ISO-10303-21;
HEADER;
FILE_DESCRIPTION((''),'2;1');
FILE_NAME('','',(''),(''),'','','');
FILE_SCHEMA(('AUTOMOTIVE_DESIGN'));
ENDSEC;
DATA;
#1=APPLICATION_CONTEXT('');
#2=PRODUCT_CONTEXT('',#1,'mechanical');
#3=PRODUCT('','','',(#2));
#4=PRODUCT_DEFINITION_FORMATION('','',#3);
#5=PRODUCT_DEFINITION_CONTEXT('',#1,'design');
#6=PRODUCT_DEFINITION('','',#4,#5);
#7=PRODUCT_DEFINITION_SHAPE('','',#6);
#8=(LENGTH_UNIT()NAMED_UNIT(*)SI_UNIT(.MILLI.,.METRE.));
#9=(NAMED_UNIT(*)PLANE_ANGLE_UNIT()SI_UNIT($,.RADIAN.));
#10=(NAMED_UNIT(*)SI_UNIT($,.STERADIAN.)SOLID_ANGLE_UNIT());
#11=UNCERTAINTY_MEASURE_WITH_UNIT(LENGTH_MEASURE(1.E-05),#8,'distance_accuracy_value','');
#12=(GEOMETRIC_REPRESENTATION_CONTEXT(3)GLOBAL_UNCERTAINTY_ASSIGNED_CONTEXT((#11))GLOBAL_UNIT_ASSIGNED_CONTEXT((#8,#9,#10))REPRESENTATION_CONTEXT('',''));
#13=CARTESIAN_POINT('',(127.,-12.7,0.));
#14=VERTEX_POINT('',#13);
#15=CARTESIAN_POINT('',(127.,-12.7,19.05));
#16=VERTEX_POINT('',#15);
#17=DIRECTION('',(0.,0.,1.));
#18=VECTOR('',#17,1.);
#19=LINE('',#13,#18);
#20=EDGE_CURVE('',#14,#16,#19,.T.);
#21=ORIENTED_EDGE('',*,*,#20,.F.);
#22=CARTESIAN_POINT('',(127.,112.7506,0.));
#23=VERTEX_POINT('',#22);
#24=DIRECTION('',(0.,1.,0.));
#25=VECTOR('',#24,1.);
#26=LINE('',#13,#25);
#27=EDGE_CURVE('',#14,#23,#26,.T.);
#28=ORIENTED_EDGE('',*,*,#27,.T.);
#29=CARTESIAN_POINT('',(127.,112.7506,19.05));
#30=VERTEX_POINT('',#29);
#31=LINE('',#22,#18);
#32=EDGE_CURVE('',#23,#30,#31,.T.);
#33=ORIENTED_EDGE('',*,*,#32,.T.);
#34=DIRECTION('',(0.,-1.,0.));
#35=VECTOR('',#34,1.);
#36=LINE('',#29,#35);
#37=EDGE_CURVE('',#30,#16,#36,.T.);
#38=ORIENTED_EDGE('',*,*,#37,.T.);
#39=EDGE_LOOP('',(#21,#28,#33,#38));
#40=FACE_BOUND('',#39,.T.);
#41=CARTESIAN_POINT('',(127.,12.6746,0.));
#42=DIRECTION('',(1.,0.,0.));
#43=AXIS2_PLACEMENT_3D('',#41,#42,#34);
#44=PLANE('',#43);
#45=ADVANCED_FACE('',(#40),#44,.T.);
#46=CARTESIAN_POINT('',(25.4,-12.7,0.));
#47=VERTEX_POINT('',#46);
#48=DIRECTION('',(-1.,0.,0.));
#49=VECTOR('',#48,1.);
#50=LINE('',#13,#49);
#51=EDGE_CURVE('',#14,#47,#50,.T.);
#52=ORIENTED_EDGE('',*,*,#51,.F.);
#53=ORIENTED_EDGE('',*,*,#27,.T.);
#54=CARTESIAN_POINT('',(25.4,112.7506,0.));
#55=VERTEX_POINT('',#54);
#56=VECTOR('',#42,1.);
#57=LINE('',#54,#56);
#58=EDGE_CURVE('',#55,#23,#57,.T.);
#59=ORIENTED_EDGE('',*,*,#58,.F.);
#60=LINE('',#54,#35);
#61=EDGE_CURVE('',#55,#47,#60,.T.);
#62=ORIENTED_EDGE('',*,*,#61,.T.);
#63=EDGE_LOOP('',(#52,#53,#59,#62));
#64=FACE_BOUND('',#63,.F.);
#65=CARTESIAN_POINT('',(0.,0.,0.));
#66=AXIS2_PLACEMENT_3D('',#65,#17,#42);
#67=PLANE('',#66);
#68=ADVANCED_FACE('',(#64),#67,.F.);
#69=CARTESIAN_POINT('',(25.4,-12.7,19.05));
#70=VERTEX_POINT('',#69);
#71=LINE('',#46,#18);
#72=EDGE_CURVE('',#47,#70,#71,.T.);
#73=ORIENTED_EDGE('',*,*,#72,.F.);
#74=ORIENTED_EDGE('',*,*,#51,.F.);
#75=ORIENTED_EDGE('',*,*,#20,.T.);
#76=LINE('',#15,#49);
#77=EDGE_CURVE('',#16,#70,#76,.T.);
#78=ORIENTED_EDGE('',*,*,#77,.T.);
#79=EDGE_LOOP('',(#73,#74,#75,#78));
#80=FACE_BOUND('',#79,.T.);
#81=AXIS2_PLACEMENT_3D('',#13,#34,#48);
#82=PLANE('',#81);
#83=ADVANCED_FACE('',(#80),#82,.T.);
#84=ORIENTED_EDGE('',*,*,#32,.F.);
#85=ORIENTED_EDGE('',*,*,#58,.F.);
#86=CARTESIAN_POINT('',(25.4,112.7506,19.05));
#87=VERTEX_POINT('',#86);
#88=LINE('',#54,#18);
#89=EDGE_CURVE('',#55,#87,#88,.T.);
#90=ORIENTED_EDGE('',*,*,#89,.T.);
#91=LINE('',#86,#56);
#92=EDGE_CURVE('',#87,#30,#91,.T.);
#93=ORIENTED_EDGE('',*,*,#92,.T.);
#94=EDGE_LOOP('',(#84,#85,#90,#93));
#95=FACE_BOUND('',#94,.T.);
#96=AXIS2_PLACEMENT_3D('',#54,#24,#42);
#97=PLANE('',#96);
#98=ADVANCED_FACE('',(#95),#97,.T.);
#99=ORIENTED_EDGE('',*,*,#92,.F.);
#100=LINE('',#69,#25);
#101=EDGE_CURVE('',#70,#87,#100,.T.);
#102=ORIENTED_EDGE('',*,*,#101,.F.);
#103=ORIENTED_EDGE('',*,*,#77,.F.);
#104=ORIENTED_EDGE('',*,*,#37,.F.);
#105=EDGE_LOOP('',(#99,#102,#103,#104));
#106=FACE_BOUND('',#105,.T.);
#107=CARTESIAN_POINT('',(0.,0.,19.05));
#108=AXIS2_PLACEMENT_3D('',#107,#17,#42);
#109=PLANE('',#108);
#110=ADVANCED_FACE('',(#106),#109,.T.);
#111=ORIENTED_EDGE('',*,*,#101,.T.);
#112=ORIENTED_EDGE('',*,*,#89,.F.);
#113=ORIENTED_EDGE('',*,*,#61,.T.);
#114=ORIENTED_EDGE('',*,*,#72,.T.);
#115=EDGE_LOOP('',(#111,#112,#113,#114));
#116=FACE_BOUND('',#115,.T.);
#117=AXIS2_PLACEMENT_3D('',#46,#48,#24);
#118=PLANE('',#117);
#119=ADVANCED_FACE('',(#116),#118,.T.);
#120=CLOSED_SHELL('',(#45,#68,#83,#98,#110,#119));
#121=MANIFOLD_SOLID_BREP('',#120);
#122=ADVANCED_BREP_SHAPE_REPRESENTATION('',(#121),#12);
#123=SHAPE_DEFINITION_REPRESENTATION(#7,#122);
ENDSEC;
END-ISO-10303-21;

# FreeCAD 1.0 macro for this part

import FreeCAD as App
import Part
import Sketcher
from FreeCAD import Vector
Q = App.Units.Quantity

doc = App.newDocument("Part")
body = doc.addObject("PartDesign::Body", "Body")

# Sketch on XY plane
sketch1 = body.newObject("Sketcher::SketchObject", "Sketch")
sketch1.AttachmentSupport = (doc.getObject("XY_Plane"), [""])
sketch1.MapMode = "FlatFace"
sketch1.addGeometry([
    Part.LineSegment(Vector(25, -13, 0), Vector(127, -13, 0)),
    Part.LineSegment(Vector(127, -13, 0), Vector(127, 113, 0)),
    Part.LineSegment(Vector(127, 113, 0), Vector(25, 113, 0)),
    Part.LineSegment(Vector(25, 113, 0), Vector(25, -13, 0)),
], False)
sketch1.addConstraint([
    Sketcher.Constraint("Coincident", 0, 2, 1, 1),
    Sketcher.Constraint("Coincident", 1, 2, 2, 1),
    Sketcher.Constraint("Coincident", 2, 2, 3, 1),
    Sketcher.Constraint("Coincident", 3, 2, 0, 1),
    Sketcher.Constraint("Horizontal", 0),
    Sketcher.Constraint("Vertical", 1),
    Sketcher.Constraint("Horizontal", 2),
    Sketcher.Constraint("Vertical", 3),
    Sketcher.Constraint("DistanceX", 0, 1, 0, 2, Q("4 in")),
    Sketcher.Constraint("DistanceX", -1, 1, 0, 2, Q("5 in")),
    Sketcher.Constraint("DistanceY", 0, 2, -1, 1, Q("0.5 in")),
    Sketcher.Constraint("DistanceY", 1, 1, 1, 2, Q("4.939 in")),
])
pad1 = body.newObject("PartDesign::Pad", "Pad")
pad1.Profile = sketch1
pad1.Length = Q("0.75 in")

doc.recompute()
